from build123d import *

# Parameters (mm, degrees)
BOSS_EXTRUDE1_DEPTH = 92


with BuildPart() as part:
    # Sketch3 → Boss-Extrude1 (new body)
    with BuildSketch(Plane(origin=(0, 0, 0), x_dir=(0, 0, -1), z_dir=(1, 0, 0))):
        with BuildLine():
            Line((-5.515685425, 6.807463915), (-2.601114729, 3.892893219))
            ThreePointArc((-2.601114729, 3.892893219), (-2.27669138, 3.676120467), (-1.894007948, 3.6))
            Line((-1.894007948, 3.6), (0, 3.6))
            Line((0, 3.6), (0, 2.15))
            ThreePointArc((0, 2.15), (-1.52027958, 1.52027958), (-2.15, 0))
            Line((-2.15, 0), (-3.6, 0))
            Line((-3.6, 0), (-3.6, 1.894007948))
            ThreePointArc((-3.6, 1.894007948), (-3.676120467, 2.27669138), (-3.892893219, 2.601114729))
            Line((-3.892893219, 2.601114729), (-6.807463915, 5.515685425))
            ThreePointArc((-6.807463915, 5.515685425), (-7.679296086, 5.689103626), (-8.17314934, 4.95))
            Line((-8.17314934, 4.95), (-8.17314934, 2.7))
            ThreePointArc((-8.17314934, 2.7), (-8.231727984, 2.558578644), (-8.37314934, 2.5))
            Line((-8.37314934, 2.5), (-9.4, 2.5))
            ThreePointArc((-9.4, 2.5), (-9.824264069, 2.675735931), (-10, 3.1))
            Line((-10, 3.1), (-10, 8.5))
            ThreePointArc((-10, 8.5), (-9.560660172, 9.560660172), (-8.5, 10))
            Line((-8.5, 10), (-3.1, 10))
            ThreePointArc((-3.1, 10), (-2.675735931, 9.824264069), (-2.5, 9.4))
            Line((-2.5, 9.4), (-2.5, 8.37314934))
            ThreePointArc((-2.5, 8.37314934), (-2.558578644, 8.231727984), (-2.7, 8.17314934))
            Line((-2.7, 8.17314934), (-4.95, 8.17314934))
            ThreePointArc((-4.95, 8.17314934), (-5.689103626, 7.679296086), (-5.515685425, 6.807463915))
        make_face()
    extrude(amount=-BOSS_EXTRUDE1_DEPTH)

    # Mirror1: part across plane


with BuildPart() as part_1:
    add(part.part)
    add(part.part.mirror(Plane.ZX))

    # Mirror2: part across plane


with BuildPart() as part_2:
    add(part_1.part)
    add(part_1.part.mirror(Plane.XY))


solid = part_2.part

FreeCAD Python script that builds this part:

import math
import FreeCAD as App
import Part
import Sketcher

V = App.Vector

doc = App.newDocument("Part")
params = doc.addObject("Spreadsheet::Sheet", "Params")
for row, (alias, value) in enumerate([
    ("sketch1_radius", "1 mm"),
    ("sketch1_radius2", "0.8 mm"),
    ("sketch1_radius3", "0.2 mm"),
    ("sketch1_radius4", "0.6 mm"),
    ("sketch1_radius5", "1.5 mm"),
    ("pad1_length", "92 mm"),
], start=1):
    params.set(f"A{row}", alias)
    params.set(f"B{row}", "=" + value)
    params.setAlias(f"B{row}", alias)

body = doc.addObject("PartDesign::Body", "Body")

# Sketch on YZ plane
sketch1 = body.newObject("Sketcher::SketchObject", "Sketch")
sketch1.AttachmentSupport = (doc.getObject("YZ_Plane"), [""])
sketch1.MapMode = "FlatFace"
sketch1.addGeometry(Part.LineSegment(V(3.89, 2.6, 0), V(6.81, 5.52, 0)), False)
sketch1.addGeometry(Part.ArcOfCircle(Part.Circle(V(7.37, 4.95, 0), V(0, 0, 1), 0.8), math.radians(0), math.radians(135)), False)
sketch1.addGeometry(Part.LineSegment(V(8.17, 4.95, 0), V(8.17, 2.7, 0)), False)
sketch1.addGeometry(Part.ArcOfCircle(Part.Circle(V(8.37, 2.7, 0), V(0, 0, 1), 0.2), math.radians(-180), math.radians(-90)), False)
sketch1.addGeometry(Part.LineSegment(V(8.37, 2.5, 0), V(9.4, 2.5, 0)), False)
sketch1.addGeometry(Part.ArcOfCircle(Part.Circle(V(9.4, 3.1, 0), V(0, 0, 1), 0.6), math.radians(-90), math.radians(0)), False)
sketch1.addGeometry(Part.LineSegment(V(10, 3.1, 0), V(10, 8.5, 0)), False)
sketch1.addGeometry(Part.ArcOfCircle(Part.Circle(V(8.5, 8.5, 0), V(0, 0, 1), 1.5), math.radians(0), math.radians(90)), False)
sketch1.addGeometry(Part.LineSegment(V(8.5, 10, 0), V(3.1, 10, 0)), False)
sketch1.addGeometry(Part.ArcOfCircle(Part.Circle(V(3.1, 9.4, 0), V(0, 0, 1), 0.6), math.radians(90), math.radians(180)), False)
sketch1.addGeometry(Part.LineSegment(V(2.5, 9.4, 0), V(2.5, 8.37, 0)), False)
sketch1.addGeometry(Part.ArcOfCircle(Part.Circle(V(2.7, 8.37, 0), V(0, 0, 1), 0.2), math.radians(-180), math.radians(-90)), False)
sketch1.addGeometry(Part.LineSegment(V(2.7, 8.17, 0), V(4.95, 8.17, 0)), False)
sketch1.addGeometry(Part.ArcOfCircle(Part.Circle(V(4.95, 7.37, 0), V(0, 0, 1), 0.8), math.radians(-45), math.radians(90)), False)
sketch1.addGeometry(Part.LineSegment(V(5.52, 6.81, 0), V(2.6, 3.89, 0)), False)
sketch1.addGeometry(Part.ArcOfCircle(Part.Circle(V(1.89, 4.6, 0), V(0, 0, 1), 1), math.radians(-90), math.radians(-45)), False)
sketch1.addGeometry(Part.LineSegment(V(1.89, 3.6, 0), V(0, 3.6, 0)), False)
sketch1.addGeometry(Part.LineSegment(V(0, 3.6, 0), V(0, 2.15, 0)), False)
sketch1.addGeometry(Part.ArcOfCircle(Part.Circle(V(0, 0, 0), V(0, 0, 1), 2.15), math.radians(0), math.radians(90)), False)
sketch1.addGeometry(Part.LineSegment(V(2.15, 0, 0), V(3.6, 0, 0)), False)
sketch1.addGeometry(Part.LineSegment(V(3.6, 0, 0), V(3.6, 1.89, 0)), False)
sketch1.addGeometry(Part.ArcOfCircle(Part.Circle(V(4.6, 1.89, 0), V(0, 0, 1), 1), math.radians(135), math.radians(180)), False)
sketch1.addConstraint(Sketcher.Constraint("Tangent", 0, 2, 1, 2))
sketch1.addConstraint(Sketcher.Constraint("Tangent", 1, 1, 2, 1))
sketch1.addConstraint(Sketcher.Constraint("Tangent", 2, 2, 3, 1))
sketch1.addConstraint(Sketcher.Constraint("Tangent", 3, 2, 4, 1))
sketch1.addConstraint(Sketcher.Constraint("Tangent", 4, 2, 5, 1))
sketch1.addConstraint(Sketcher.Constraint("Tangent", 5, 2, 6, 1))
sketch1.addConstraint(Sketcher.Constraint("Tangent", 6, 2, 7, 1))
sketch1.addConstraint(Sketcher.Constraint("Tangent", 7, 2, 8, 1))
sketch1.addConstraint(Sketcher.Constraint("Tangent", 8, 2, 9, 1))
sketch1.addConstraint(Sketcher.Constraint("Tangent", 9, 2, 10, 1))
sketch1.addConstraint(Sketcher.Constraint("Tangent", 10, 2, 11, 1))
sketch1.addConstraint(Sketcher.Constraint("Tangent", 11, 2, 12, 1))
sketch1.addConstraint(Sketcher.Constraint("Tangent", 12, 2, 13, 2))
sketch1.addConstraint(Sketcher.Constraint("Tangent", 13, 1, 14, 1))
sketch1.addConstraint(Sketcher.Constraint("Tangent", 14, 2, 15, 2))
sketch1.addConstraint(Sketcher.Constraint("Tangent", 15, 1, 16, 1))
sketch1.addConstraint(Sketcher.Constraint("Coincident", 16, 2, 17, 1))
sketch1.addConstraint(Sketcher.Constraint("Coincident", 17, 2, 18, 2))
sketch1.addConstraint(Sketcher.Constraint("Coincident", 18, 1, 19, 1))
sketch1.addConstraint(Sketcher.Constraint("Coincident", 19, 2, 20, 1))
sketch1.addConstraint(Sketcher.Constraint("Tangent", 20, 2, 21, 2))
sketch1.addConstraint(Sketcher.Constraint("Tangent", 21, 1, 0, 1))
sketch1.addConstraint(Sketcher.Constraint("Vertical", 2))
sketch1.addConstraint(Sketcher.Constraint("Horizontal", 4))
sketch1.addConstraint(Sketcher.Constraint("Vertical", 6))
sketch1.addConstraint(Sketcher.Constraint("Horizontal", 8))
sketch1.addConstraint(Sketcher.Constraint("Vertical", 10))
sketch1.addConstraint(Sketcher.Constraint("Horizontal", 12))
sketch1.addConstraint(Sketcher.Constraint("Horizontal", 16))
sketch1.addConstraint(Sketcher.Constraint("Vertical", 17))
sketch1.addConstraint(Sketcher.Constraint("Horizontal", 19))
sketch1.addConstraint(Sketcher.Constraint("Vertical", 20))
sketch1.addConstraint(Sketcher.Constraint("Coincident", 18, 3, -1, 1))
sketch1.addConstraint(Sketcher.Constraint("Equal", 5, 9))
sketch1.addConstraint(Sketcher.Constraint("Equal", 3, 11))
sketch1.addConstraint(Sketcher.Constraint("Equal", 1, 13))
sketch1.addConstraint(Sketcher.Constraint("Equal", 15, 21))
sketch1.addConstraint(Sketcher.Constraint("PointOnObject", 16, 2, -2))
sketch1.addConstraint(Sketcher.Constraint("PointOnObject", 18, 1, -1))
sketch1.addConstraint(Sketcher.Constraint("Parallel", 0, 14))
sketch1.addConstraint(Sketcher.Constraint("Equal", 12, 2))
sketch1.addConstraint(Sketcher.Constraint("Equal", 8, 6))
sketch1.addConstraint(Sketcher.Constraint("Equal", 4, 10))
sketch1.addConstraint(Sketcher.Constraint("Equal", 19, 17))
sketch1.addConstraint(Sketcher.Constraint("Equal", 16, 20))
sketch1.addConstraint(Sketcher.Constraint("Equal", 0, 14))
sketch1.addConstraint(Sketcher.Constraint("Radius", 15, 1.0))
sketch1.addConstraint(Sketcher.Constraint("Radius", 1, 0.8))
sketch1.addConstraint(Sketcher.Constraint("Radius", 3, 0.2))
sketch1.addConstraint(Sketcher.Constraint("Radius", 5, 0.6))
sketch1.addConstraint(Sketcher.Constraint("Radius", 7, 1.5))
sketch1.addConstraint(Sketcher.Constraint("Radius", 18, 2.15))
sketch1.addConstraint(Sketcher.Constraint("DistanceX", 8, 2, 8, 1, 5.4))
sketch1.addConstraint(Sketcher.Constraint("DistanceX", -1, 1, 5, 2, 10.0))
sketch1.addConstraint(Sketcher.Constraint("DistanceX", 12, 1, 12, 2, 2.25))
sketch1.addConstraint(Sketcher.Constraint("DistanceX", 19, 1, 19, 2, 1.45))
sketch1.addConstraint(Sketcher.Constraint("DistanceX", 4, 1, 4, 2, 1.026851))
sketch1.setExpression("Constraints[46]", "Params.sketch1_radius")
sketch1.setExpression("Constraints[47]", "Params.sketch1_radius2")
sketch1.setExpression("Constraints[48]", "Params.sketch1_radius3")
sketch1.setExpression("Constraints[49]", "Params.sketch1_radius4")
sketch1.setExpression("Constraints[50]", "Params.sketch1_radius5")
pad1 = body.newObject("PartDesign::Pad", "Pad")
pad1.Profile = sketch1
pad1.setExpression("Length", "Params.pad1_length")
pad1.Reversed = True
body2 = doc.addObject("PartDesign::Body", "Body001")
doc.recompute()

body2.BaseFeature = body
doc.recompute()

mirroring = doc.addObject("Part::Mirroring", "Mirroring")
mirroring.Source = body
mirroring.Base = V(0, 0, 0)
mirroring.Normal = V(0, 1, 0)
body3 = doc.addObject("PartDesign::Body", "Body002")
body3.BaseFeature = mirroring
boolean = body2.newObject("PartDesign::Boolean", "Boolean")
boolean.Type = "Fuse"
boolean.addObjects([body3])
doc.recompute()
body4 = doc.addObject("PartDesign::Body", "Body003")
doc.recompute()

body4.BaseFeature = body2
doc.recompute()

mirroring2 = doc.addObject("Part::Mirroring", "Mirroring001")
mirroring2.Source = body2
mirroring2.Base = V(0, 0, 0)
mirroring2.Normal = V(0, 0, 1)
body5 = doc.addObject("PartDesign::Body", "Body004")
body5.BaseFeature = mirroring2
boolean2 = body4.newObject("PartDesign::Boolean", "Boolean001")
boolean2.Type = "Fuse"
boolean2.addObjects([body5])
doc.recompute()
mirroring.Visibility = False
mirroring2.Visibility = False

doc.recompute()
